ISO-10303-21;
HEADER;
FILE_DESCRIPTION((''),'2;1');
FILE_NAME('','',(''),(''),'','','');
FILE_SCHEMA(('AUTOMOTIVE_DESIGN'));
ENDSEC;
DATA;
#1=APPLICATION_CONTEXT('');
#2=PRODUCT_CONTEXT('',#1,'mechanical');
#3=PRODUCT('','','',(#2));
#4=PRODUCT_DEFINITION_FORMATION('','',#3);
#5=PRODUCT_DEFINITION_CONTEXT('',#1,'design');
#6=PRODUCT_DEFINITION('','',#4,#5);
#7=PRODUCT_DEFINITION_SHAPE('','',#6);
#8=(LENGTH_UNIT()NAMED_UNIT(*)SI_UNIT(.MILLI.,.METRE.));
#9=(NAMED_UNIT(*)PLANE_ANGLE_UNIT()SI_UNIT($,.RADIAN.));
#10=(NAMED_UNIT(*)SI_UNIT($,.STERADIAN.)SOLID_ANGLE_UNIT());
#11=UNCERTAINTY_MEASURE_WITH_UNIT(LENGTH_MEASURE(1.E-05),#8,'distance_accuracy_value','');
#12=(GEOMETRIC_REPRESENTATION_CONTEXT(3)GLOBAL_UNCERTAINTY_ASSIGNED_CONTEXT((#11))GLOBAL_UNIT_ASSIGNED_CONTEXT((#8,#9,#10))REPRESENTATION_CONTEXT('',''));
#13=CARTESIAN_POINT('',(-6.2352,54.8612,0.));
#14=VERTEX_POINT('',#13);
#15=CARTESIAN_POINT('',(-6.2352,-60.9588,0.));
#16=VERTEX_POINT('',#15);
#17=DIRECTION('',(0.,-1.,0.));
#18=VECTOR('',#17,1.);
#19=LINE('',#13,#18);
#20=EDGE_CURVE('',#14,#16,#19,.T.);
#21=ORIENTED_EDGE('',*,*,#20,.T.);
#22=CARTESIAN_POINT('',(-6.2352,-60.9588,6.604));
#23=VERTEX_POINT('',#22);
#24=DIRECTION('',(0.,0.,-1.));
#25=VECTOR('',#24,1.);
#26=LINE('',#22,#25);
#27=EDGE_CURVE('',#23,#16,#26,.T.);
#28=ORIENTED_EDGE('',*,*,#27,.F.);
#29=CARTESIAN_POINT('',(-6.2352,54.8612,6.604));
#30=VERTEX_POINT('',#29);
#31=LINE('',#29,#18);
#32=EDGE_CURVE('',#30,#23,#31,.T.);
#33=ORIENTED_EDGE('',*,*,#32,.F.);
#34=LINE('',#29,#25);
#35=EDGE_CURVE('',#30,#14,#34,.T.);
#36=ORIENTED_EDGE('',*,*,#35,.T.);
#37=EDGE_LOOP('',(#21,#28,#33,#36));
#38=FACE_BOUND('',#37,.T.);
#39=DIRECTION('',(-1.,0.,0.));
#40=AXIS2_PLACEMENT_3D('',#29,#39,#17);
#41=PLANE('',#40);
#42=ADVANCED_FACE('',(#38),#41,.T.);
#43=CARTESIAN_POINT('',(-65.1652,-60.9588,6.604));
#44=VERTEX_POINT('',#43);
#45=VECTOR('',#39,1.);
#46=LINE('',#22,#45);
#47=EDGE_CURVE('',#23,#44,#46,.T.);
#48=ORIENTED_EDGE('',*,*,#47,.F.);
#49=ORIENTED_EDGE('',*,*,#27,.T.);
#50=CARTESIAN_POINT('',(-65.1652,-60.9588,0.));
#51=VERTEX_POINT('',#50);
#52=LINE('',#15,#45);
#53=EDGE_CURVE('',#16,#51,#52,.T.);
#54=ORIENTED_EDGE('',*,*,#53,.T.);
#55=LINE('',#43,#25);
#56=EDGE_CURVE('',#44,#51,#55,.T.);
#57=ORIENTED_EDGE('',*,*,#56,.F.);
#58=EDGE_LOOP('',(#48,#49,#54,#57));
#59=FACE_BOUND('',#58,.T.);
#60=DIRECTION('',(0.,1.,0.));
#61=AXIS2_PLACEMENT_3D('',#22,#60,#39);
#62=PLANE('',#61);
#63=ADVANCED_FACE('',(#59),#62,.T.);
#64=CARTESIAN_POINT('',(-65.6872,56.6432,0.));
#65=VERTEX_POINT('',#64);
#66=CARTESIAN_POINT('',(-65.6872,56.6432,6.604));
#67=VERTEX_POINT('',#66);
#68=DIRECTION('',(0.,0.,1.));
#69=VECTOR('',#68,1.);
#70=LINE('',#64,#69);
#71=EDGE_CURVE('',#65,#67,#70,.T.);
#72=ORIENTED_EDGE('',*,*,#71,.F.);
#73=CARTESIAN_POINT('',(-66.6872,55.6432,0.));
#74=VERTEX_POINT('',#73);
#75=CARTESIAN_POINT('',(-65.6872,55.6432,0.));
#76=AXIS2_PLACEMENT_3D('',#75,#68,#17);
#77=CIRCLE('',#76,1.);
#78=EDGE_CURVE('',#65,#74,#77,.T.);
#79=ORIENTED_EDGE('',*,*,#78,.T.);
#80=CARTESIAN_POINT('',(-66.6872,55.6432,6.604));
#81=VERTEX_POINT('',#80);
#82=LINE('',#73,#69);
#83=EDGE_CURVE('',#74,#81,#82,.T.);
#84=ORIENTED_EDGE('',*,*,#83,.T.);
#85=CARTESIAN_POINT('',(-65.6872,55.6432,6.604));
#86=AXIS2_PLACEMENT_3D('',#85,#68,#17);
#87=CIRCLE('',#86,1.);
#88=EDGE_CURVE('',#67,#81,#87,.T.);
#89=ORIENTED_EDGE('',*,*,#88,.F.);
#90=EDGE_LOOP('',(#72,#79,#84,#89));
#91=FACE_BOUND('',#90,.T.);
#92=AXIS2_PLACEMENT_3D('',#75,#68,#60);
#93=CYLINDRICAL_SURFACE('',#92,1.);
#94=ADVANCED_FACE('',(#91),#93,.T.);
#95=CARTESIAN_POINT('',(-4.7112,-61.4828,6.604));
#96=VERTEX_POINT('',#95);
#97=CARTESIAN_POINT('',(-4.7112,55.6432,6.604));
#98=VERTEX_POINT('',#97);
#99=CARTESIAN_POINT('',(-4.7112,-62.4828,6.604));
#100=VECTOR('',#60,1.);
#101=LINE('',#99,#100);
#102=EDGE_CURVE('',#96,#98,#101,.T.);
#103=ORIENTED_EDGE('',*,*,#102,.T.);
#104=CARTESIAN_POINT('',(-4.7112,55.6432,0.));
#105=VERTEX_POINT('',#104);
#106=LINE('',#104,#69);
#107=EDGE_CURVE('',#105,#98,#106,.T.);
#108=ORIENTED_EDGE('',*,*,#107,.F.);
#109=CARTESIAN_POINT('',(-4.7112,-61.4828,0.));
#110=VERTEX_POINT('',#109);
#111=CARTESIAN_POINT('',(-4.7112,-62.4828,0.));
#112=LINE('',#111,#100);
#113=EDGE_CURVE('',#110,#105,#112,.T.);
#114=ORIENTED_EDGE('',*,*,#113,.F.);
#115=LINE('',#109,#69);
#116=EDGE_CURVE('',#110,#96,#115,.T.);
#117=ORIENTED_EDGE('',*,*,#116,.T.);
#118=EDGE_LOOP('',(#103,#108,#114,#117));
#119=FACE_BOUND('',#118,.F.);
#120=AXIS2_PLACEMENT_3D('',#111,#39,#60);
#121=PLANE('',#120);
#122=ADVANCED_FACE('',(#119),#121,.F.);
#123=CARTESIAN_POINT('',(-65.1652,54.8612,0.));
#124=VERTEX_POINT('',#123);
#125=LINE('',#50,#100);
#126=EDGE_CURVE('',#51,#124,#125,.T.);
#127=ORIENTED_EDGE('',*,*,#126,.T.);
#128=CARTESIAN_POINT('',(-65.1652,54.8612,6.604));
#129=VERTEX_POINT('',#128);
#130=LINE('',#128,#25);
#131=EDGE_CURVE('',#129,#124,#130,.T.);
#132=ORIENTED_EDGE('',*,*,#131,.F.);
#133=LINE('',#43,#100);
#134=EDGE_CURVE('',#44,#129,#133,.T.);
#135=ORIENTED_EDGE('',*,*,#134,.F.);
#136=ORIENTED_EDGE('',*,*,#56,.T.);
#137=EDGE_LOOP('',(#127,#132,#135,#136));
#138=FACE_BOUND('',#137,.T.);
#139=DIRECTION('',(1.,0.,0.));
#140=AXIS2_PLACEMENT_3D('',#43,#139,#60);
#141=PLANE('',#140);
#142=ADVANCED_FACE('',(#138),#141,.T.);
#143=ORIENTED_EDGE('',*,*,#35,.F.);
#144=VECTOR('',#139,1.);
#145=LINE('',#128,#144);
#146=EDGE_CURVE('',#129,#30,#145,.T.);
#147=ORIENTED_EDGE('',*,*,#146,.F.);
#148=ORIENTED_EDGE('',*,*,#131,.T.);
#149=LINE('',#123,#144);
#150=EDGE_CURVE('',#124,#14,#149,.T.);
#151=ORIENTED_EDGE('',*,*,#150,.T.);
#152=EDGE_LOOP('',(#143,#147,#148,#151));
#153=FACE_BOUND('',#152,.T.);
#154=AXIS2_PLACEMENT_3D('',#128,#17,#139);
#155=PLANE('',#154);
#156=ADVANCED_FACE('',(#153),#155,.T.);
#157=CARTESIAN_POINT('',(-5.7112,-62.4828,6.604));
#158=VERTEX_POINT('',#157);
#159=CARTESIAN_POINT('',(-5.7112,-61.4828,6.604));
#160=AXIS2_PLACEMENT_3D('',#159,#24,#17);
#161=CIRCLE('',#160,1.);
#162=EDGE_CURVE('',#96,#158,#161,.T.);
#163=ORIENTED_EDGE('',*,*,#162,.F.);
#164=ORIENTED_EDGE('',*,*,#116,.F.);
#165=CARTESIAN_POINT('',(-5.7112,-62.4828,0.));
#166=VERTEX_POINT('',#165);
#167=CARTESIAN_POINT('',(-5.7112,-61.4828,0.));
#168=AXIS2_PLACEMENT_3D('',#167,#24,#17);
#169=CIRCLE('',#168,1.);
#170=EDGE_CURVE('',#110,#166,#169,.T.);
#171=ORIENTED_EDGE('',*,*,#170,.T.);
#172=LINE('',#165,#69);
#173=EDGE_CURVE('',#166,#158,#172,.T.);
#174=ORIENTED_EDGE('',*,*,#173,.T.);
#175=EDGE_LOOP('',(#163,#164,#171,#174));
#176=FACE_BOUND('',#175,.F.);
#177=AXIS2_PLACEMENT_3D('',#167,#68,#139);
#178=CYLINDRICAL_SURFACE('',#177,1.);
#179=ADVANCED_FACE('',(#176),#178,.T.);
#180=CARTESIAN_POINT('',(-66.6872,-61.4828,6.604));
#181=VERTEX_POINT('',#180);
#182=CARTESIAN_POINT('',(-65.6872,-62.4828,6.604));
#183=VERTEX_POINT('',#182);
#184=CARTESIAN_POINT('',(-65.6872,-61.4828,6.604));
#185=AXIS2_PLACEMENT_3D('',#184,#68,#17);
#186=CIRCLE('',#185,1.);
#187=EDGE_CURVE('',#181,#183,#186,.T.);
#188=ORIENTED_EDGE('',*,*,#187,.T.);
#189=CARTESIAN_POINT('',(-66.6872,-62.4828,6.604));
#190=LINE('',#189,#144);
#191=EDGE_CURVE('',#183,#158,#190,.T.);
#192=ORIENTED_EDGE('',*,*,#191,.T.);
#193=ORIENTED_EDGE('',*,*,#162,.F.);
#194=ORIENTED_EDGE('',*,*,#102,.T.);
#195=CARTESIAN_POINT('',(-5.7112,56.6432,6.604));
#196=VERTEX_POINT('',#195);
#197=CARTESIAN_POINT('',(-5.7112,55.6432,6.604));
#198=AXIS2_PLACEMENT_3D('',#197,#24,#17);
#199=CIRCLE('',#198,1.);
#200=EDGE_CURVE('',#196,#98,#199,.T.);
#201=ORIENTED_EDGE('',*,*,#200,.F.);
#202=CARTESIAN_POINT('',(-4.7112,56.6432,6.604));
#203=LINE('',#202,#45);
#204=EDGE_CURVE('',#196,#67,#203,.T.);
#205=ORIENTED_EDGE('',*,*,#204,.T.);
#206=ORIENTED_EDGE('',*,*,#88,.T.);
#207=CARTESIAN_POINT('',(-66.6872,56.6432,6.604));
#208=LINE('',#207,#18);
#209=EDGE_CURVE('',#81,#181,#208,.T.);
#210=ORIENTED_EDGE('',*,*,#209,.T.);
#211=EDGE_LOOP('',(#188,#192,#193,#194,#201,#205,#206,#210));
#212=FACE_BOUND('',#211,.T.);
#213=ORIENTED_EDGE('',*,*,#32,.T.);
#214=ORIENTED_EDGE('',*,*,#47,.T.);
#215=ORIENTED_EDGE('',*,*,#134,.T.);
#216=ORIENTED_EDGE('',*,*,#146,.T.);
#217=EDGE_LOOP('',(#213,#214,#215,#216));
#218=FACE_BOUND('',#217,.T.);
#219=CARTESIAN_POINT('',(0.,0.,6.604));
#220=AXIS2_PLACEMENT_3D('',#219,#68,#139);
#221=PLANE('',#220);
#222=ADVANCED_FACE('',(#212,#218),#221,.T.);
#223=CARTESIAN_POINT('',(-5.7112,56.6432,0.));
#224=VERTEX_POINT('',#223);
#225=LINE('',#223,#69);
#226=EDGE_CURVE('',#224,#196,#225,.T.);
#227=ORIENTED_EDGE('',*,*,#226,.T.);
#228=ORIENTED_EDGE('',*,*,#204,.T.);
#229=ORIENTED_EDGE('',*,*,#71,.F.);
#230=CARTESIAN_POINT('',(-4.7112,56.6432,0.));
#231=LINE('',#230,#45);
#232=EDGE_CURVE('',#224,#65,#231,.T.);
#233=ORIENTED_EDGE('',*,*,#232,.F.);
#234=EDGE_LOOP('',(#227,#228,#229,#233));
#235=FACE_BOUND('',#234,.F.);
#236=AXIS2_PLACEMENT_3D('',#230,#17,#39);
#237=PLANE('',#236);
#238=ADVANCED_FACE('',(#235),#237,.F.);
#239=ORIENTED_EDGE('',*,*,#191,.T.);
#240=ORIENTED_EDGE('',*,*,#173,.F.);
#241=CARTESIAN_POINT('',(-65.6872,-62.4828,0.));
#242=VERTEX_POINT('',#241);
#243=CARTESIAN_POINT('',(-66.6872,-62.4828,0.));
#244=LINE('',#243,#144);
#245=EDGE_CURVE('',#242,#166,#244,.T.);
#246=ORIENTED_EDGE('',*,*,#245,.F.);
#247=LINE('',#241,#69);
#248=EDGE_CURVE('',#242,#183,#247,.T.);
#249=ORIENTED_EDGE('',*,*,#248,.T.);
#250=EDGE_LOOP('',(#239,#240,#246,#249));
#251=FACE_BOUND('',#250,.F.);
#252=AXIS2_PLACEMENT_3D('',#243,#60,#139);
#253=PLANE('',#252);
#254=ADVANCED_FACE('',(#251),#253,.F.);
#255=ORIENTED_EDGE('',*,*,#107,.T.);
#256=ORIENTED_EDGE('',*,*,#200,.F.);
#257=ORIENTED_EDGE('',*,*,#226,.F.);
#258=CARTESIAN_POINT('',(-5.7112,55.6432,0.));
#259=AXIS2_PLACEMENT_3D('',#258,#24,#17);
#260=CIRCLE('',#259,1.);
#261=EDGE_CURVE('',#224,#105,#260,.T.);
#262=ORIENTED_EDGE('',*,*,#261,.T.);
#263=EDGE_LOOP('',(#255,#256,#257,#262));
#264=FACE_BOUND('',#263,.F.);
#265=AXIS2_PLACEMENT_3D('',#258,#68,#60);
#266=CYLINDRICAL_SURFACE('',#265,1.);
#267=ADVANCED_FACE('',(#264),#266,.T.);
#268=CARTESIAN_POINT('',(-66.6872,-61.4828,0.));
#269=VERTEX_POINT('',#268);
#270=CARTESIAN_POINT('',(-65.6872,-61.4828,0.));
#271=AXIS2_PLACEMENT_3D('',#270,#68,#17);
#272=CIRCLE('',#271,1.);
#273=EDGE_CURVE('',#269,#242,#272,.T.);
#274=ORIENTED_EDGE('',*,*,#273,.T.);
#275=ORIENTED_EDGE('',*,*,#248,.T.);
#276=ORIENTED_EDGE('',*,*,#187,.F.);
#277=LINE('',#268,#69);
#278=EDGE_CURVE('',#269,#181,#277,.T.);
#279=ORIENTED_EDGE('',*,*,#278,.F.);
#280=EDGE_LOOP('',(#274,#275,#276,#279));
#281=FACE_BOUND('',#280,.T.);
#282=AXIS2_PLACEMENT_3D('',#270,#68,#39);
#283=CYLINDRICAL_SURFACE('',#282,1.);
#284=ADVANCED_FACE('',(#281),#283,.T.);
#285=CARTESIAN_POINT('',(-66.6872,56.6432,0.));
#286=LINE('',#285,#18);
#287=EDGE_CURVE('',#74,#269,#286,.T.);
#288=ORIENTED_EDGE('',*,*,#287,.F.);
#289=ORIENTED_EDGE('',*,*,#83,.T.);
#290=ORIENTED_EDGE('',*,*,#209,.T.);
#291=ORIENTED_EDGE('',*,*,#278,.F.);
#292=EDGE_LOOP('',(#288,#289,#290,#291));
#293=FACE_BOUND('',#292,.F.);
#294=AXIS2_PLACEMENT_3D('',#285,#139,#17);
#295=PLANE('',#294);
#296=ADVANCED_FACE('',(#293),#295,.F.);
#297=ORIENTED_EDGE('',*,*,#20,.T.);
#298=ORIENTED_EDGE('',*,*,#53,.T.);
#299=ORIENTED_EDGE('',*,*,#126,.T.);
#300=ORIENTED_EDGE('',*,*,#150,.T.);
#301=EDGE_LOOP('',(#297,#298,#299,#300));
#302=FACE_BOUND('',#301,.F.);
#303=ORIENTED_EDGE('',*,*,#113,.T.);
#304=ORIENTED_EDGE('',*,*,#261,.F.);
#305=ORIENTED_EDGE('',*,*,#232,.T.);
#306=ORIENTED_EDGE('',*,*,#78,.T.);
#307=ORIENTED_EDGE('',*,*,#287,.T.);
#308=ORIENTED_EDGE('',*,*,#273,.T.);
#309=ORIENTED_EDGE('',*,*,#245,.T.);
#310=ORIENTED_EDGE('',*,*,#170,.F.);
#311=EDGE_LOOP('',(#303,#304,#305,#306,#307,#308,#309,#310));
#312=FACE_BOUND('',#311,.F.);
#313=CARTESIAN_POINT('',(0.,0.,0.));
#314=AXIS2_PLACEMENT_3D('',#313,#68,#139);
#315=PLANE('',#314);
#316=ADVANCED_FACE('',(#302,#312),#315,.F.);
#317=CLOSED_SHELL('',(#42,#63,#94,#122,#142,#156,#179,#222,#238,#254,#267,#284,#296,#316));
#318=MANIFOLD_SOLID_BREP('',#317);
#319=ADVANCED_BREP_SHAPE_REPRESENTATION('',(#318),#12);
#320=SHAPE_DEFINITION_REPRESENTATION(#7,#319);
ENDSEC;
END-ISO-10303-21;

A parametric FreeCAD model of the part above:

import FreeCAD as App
import Part
import Sketcher
Q = App.Units.Quantity


def edges_at(feature, points):
    """Names of the edges that pass closest to the given points."""
    edges = feature.Shape.Edges
    near = lambda p: min(range(len(edges)), key=lambda i: edges[i].distToShape(Part.Vertex(*p))[0])
    return sorted({f"Edge{near(p) + 1}" for p in points})

doc = App.newDocument("Part")
body = doc.addObject("PartDesign::Body", "Body")

sketch1 = body.newObject("Sketcher::SketchObject", "Sketch")
sketch1.AttachmentSupport = (doc.getObject("XY_Plane"), [""])
sketch1.MapMode = "FlatFace"
sketch1.addGeometry([
    Part.LineSegment(App.Vector(-4.7112, 56.6432, 0), App.Vector(-66.6872, 56.6432, 0)),
    Part.LineSegment(App.Vector(-66.6872, 56.6432, 0), App.Vector(-66.6872, -62.4828, 0)),
    Part.LineSegment(App.Vector(-66.6872, -62.4828, 0), App.Vector(-4.7112, -62.4828, 0)),
    Part.LineSegment(App.Vector(-4.7112, -62.4828, 0), App.Vector(-4.7112, 56.6432, 0)),
], False)
sketch1.addConstraint([
    Sketcher.Constraint("Coincident", 0, 2, 1, 1),
    Sketcher.Constraint("Coincident", 1, 2, 2, 1),
    Sketcher.Constraint("Coincident", 2, 2, 3, 1),
    Sketcher.Constraint("Coincident", 3, 2, 0, 1),
    Sketcher.Constraint("Horizontal", 0),
    Sketcher.Constraint("Vertical", 1),
    Sketcher.Constraint("Horizontal", 2),
    Sketcher.Constraint("Vertical", 3),
    Sketcher.Constraint("DistanceX", 0, 2, 0, 1, Q("2.44 in")),
    Sketcher.Constraint("DistanceY", 1, 2, 1, 1, Q("4.69 in")),
    Sketcher.Constraint("DistanceX", 0, 2, -1, 1, 66.6872),
    Sketcher.Constraint("DistanceY", -1, 1, 0, 2, 56.6432),
])
pad1 = body.newObject("PartDesign::Pad", "Pad")
pad1.Profile = sketch1
pad1.Length = Q("0.26 in")

sketch2 = body.newObject("Sketcher::SketchObject", "Sketch001")
sketch2.AttachmentSupport = (doc.getObject("XY_Plane"), [""])
sketch2.MapMode = "FlatFace"
sketch2.AttachmentOffset = App.Placement(App.Vector(0, 0, 0.26 * 25.4), App.Rotation())
sketch2.addGeometry([
    Part.LineSegment(App.Vector(-6.2352, 54.8612, 0), App.Vector(-65.1652, 54.8612, 0)),
    Part.LineSegment(App.Vector(-65.1652, 54.8612, 0), App.Vector(-65.1652, -60.9588, 0)),
    Part.LineSegment(App.Vector(-65.1652, -60.9588, 0), App.Vector(-6.2352, -60.9588, 0)),
    Part.LineSegment(App.Vector(-6.2352, -60.9588, 0), App.Vector(-6.2352, 54.8612, 0)),
], False)
sketch2.addConstraint([
    Sketcher.Constraint("Coincident", 0, 2, 1, 1),
    Sketcher.Constraint("Coincident", 1, 2, 2, 1),
    Sketcher.Constraint("Coincident", 2, 2, 3, 1),
    Sketcher.Constraint("Coincident", 3, 2, 0, 1),
    Sketcher.Constraint("Horizontal", 0),
    Sketcher.Constraint("Vertical", 1),
    Sketcher.Constraint("Horizontal", 2),
    Sketcher.Constraint("Vertical", 3),
    Sketcher.Constraint("DistanceX", 0, 2, 0, 1, 58.93),
    Sketcher.Constraint("DistanceY", 1, 2, 1, 1, 115.82),
    Sketcher.Constraint("DistanceY", -1, 1, 0, 2, Q("2.1599 in")),
    Sketcher.Constraint("DistanceX", 0, 2, -1, 1, 65.1652),
])
pocket1 = body.newObject("PartDesign::Pocket", "Pocket")
pocket1.Profile = sketch2
pocket1.Length = Q("0.26 in")
doc.recompute()

fillet = body.newObject("PartDesign::Fillet", "Fillet")
fillet.Base = (pocket1, edges_at(pocket1, [
    (-66.687, -62.483, 3.302),
    (-66.687, 56.643, 3.302),
    (-4.711, 56.643, 3.302),
    (-4.711, -62.483, 3.302),
]))
fillet.Radius = 1

doc.recompute()
